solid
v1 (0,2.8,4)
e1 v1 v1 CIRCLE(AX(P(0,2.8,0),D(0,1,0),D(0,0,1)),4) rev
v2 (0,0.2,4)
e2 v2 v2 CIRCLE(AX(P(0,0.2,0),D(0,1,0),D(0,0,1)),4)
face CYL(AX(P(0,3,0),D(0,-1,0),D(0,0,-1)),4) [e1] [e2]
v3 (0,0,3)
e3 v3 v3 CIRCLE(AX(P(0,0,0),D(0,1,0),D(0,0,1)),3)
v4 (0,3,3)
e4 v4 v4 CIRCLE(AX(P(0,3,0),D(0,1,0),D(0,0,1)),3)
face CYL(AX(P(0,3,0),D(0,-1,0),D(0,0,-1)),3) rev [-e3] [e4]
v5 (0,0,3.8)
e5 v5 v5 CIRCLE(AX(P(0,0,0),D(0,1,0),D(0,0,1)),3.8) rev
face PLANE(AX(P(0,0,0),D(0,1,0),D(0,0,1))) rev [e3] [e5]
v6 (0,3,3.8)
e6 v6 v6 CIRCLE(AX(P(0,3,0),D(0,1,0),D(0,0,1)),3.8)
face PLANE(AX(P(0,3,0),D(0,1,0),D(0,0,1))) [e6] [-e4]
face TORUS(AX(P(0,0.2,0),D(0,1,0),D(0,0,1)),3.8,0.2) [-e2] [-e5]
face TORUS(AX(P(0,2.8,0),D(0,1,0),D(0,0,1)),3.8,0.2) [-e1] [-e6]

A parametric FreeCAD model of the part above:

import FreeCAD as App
import Part
import Sketcher

V = App.Vector


def edges_at(feature, points):
    """Names of the edges that pass closest to the given points."""
    edges = feature.Shape.Edges
    near = lambda p: min(range(len(edges)), key=lambda i: edges[i].distToShape(Part.Vertex(*p))[0])
    return sorted({f"Edge{near(p) + 1}" for p in points})

doc = App.newDocument("Part")
params = doc.addObject("Spreadsheet::Sheet", "Params")
for row, (alias, value) in enumerate([
    ("sketch1_diameter", "8 mm"),
    ("sketch1_diameter2", "6 mm"),
    ("pad1_length", "3 mm"),
    ("fillet_radius", "0.2 mm"),
], start=1):
    params.set(f"A{row}", alias)
    params.set(f"B{row}", "=" + value)
    params.setAlias(f"B{row}", alias)

body = doc.addObject("PartDesign::Body", "Body")

sketch1 = body.newObject("Sketcher::SketchObject", "Sketch")
sketch1.AttachmentSupport = (doc.getObject("XZ_Plane"), [""])
sketch1.MapMode = "FlatFace"
sketch1.addGeometry([
    Part.Circle(V(0, 0, 0), V(0, 0, 1), 4),
    Part.Circle(V(0, 0, 0), V(0, 0, 1), 3),
], False)
sketch1.addConstraint([
    Sketcher.Constraint("Coincident", 0, 3, -1, 1),
    Sketcher.Constraint("Coincident", 1, 3, -1, 1),
    Sketcher.Constraint("Diameter", 0, 8.0),
    Sketcher.Constraint("Diameter", 1, 6.0),
])
sketch1.setExpression("Constraints[2]", "Params.sketch1_diameter")
sketch1.setExpression("Constraints[3]", "Params.sketch1_diameter2")
pad1 = body.newObject("PartDesign::Pad", "Pad")
pad1.Profile = sketch1
pad1.setExpression("Length", "Params.pad1_length")
pad1.Reversed = True
doc.recompute()

fillet = body.newObject("PartDesign::Fillet", "Fillet")
fillet.Base = (pad1, edges_at(pad1, [(0, 0, -4), (0, 3, -4)]))
fillet.setExpression("Radius", "Params.fillet_radius")

doc.recompute()
